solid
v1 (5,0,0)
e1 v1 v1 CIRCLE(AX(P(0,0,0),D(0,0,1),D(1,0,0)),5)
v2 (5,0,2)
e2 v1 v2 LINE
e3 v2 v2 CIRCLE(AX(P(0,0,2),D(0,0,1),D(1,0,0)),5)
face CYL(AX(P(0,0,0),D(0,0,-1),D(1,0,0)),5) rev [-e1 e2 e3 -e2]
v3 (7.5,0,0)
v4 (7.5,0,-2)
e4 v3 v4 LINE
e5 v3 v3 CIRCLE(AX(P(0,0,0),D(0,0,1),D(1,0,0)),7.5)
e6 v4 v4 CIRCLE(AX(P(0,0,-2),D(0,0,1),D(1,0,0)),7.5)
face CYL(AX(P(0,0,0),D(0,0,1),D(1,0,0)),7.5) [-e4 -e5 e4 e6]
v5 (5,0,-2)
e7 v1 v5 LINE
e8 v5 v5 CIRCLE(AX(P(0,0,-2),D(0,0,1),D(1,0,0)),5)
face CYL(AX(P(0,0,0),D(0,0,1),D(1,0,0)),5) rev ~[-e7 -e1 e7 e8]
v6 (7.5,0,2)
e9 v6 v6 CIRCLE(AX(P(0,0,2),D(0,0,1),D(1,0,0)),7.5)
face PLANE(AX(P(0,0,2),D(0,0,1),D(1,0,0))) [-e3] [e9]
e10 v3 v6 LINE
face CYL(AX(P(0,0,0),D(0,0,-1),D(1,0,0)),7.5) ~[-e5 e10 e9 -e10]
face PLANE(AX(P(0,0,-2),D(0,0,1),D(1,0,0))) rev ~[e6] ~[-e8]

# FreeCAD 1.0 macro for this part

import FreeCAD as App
import Part
import Sketcher

V = App.Vector
Q = App.Units.Quantity

doc = App.newDocument("Part")
body = doc.addObject("PartDesign::Body", "Body")

sketch1 = body.newObject("Sketcher::SketchObject", "Sketch")
sketch1.AttachmentSupport = (doc.getObject("XY_Plane"), [""])
sketch1.MapMode = "FlatFace"
sketch1.addGeometry(Part.Circle(V(0, 0, 0), V(0, 0, 1), 8), False)
sketch1.addGeometry(Part.Circle(V(0, 0, 0), V(0, 0, 1), 5), False)
sketch1.addConstraint(Sketcher.Constraint("Coincident", 0, 3, -1, 1))
sketch1.addConstraint(Sketcher.Constraint("Coincident", 1, 3, -1, 1))
sketch1.addConstraint(Sketcher.Constraint("Diameter", 0, Q("15 mm")))
sketch1.addConstraint(Sketcher.Constraint("Diameter", 1, Q("10 mm")))
pad1 = body.newObject("PartDesign::Pad", "Pad")
pad1.Profile = sketch1
pad1.Length = 4
pad1.Midplane = True

doc.recompute()
